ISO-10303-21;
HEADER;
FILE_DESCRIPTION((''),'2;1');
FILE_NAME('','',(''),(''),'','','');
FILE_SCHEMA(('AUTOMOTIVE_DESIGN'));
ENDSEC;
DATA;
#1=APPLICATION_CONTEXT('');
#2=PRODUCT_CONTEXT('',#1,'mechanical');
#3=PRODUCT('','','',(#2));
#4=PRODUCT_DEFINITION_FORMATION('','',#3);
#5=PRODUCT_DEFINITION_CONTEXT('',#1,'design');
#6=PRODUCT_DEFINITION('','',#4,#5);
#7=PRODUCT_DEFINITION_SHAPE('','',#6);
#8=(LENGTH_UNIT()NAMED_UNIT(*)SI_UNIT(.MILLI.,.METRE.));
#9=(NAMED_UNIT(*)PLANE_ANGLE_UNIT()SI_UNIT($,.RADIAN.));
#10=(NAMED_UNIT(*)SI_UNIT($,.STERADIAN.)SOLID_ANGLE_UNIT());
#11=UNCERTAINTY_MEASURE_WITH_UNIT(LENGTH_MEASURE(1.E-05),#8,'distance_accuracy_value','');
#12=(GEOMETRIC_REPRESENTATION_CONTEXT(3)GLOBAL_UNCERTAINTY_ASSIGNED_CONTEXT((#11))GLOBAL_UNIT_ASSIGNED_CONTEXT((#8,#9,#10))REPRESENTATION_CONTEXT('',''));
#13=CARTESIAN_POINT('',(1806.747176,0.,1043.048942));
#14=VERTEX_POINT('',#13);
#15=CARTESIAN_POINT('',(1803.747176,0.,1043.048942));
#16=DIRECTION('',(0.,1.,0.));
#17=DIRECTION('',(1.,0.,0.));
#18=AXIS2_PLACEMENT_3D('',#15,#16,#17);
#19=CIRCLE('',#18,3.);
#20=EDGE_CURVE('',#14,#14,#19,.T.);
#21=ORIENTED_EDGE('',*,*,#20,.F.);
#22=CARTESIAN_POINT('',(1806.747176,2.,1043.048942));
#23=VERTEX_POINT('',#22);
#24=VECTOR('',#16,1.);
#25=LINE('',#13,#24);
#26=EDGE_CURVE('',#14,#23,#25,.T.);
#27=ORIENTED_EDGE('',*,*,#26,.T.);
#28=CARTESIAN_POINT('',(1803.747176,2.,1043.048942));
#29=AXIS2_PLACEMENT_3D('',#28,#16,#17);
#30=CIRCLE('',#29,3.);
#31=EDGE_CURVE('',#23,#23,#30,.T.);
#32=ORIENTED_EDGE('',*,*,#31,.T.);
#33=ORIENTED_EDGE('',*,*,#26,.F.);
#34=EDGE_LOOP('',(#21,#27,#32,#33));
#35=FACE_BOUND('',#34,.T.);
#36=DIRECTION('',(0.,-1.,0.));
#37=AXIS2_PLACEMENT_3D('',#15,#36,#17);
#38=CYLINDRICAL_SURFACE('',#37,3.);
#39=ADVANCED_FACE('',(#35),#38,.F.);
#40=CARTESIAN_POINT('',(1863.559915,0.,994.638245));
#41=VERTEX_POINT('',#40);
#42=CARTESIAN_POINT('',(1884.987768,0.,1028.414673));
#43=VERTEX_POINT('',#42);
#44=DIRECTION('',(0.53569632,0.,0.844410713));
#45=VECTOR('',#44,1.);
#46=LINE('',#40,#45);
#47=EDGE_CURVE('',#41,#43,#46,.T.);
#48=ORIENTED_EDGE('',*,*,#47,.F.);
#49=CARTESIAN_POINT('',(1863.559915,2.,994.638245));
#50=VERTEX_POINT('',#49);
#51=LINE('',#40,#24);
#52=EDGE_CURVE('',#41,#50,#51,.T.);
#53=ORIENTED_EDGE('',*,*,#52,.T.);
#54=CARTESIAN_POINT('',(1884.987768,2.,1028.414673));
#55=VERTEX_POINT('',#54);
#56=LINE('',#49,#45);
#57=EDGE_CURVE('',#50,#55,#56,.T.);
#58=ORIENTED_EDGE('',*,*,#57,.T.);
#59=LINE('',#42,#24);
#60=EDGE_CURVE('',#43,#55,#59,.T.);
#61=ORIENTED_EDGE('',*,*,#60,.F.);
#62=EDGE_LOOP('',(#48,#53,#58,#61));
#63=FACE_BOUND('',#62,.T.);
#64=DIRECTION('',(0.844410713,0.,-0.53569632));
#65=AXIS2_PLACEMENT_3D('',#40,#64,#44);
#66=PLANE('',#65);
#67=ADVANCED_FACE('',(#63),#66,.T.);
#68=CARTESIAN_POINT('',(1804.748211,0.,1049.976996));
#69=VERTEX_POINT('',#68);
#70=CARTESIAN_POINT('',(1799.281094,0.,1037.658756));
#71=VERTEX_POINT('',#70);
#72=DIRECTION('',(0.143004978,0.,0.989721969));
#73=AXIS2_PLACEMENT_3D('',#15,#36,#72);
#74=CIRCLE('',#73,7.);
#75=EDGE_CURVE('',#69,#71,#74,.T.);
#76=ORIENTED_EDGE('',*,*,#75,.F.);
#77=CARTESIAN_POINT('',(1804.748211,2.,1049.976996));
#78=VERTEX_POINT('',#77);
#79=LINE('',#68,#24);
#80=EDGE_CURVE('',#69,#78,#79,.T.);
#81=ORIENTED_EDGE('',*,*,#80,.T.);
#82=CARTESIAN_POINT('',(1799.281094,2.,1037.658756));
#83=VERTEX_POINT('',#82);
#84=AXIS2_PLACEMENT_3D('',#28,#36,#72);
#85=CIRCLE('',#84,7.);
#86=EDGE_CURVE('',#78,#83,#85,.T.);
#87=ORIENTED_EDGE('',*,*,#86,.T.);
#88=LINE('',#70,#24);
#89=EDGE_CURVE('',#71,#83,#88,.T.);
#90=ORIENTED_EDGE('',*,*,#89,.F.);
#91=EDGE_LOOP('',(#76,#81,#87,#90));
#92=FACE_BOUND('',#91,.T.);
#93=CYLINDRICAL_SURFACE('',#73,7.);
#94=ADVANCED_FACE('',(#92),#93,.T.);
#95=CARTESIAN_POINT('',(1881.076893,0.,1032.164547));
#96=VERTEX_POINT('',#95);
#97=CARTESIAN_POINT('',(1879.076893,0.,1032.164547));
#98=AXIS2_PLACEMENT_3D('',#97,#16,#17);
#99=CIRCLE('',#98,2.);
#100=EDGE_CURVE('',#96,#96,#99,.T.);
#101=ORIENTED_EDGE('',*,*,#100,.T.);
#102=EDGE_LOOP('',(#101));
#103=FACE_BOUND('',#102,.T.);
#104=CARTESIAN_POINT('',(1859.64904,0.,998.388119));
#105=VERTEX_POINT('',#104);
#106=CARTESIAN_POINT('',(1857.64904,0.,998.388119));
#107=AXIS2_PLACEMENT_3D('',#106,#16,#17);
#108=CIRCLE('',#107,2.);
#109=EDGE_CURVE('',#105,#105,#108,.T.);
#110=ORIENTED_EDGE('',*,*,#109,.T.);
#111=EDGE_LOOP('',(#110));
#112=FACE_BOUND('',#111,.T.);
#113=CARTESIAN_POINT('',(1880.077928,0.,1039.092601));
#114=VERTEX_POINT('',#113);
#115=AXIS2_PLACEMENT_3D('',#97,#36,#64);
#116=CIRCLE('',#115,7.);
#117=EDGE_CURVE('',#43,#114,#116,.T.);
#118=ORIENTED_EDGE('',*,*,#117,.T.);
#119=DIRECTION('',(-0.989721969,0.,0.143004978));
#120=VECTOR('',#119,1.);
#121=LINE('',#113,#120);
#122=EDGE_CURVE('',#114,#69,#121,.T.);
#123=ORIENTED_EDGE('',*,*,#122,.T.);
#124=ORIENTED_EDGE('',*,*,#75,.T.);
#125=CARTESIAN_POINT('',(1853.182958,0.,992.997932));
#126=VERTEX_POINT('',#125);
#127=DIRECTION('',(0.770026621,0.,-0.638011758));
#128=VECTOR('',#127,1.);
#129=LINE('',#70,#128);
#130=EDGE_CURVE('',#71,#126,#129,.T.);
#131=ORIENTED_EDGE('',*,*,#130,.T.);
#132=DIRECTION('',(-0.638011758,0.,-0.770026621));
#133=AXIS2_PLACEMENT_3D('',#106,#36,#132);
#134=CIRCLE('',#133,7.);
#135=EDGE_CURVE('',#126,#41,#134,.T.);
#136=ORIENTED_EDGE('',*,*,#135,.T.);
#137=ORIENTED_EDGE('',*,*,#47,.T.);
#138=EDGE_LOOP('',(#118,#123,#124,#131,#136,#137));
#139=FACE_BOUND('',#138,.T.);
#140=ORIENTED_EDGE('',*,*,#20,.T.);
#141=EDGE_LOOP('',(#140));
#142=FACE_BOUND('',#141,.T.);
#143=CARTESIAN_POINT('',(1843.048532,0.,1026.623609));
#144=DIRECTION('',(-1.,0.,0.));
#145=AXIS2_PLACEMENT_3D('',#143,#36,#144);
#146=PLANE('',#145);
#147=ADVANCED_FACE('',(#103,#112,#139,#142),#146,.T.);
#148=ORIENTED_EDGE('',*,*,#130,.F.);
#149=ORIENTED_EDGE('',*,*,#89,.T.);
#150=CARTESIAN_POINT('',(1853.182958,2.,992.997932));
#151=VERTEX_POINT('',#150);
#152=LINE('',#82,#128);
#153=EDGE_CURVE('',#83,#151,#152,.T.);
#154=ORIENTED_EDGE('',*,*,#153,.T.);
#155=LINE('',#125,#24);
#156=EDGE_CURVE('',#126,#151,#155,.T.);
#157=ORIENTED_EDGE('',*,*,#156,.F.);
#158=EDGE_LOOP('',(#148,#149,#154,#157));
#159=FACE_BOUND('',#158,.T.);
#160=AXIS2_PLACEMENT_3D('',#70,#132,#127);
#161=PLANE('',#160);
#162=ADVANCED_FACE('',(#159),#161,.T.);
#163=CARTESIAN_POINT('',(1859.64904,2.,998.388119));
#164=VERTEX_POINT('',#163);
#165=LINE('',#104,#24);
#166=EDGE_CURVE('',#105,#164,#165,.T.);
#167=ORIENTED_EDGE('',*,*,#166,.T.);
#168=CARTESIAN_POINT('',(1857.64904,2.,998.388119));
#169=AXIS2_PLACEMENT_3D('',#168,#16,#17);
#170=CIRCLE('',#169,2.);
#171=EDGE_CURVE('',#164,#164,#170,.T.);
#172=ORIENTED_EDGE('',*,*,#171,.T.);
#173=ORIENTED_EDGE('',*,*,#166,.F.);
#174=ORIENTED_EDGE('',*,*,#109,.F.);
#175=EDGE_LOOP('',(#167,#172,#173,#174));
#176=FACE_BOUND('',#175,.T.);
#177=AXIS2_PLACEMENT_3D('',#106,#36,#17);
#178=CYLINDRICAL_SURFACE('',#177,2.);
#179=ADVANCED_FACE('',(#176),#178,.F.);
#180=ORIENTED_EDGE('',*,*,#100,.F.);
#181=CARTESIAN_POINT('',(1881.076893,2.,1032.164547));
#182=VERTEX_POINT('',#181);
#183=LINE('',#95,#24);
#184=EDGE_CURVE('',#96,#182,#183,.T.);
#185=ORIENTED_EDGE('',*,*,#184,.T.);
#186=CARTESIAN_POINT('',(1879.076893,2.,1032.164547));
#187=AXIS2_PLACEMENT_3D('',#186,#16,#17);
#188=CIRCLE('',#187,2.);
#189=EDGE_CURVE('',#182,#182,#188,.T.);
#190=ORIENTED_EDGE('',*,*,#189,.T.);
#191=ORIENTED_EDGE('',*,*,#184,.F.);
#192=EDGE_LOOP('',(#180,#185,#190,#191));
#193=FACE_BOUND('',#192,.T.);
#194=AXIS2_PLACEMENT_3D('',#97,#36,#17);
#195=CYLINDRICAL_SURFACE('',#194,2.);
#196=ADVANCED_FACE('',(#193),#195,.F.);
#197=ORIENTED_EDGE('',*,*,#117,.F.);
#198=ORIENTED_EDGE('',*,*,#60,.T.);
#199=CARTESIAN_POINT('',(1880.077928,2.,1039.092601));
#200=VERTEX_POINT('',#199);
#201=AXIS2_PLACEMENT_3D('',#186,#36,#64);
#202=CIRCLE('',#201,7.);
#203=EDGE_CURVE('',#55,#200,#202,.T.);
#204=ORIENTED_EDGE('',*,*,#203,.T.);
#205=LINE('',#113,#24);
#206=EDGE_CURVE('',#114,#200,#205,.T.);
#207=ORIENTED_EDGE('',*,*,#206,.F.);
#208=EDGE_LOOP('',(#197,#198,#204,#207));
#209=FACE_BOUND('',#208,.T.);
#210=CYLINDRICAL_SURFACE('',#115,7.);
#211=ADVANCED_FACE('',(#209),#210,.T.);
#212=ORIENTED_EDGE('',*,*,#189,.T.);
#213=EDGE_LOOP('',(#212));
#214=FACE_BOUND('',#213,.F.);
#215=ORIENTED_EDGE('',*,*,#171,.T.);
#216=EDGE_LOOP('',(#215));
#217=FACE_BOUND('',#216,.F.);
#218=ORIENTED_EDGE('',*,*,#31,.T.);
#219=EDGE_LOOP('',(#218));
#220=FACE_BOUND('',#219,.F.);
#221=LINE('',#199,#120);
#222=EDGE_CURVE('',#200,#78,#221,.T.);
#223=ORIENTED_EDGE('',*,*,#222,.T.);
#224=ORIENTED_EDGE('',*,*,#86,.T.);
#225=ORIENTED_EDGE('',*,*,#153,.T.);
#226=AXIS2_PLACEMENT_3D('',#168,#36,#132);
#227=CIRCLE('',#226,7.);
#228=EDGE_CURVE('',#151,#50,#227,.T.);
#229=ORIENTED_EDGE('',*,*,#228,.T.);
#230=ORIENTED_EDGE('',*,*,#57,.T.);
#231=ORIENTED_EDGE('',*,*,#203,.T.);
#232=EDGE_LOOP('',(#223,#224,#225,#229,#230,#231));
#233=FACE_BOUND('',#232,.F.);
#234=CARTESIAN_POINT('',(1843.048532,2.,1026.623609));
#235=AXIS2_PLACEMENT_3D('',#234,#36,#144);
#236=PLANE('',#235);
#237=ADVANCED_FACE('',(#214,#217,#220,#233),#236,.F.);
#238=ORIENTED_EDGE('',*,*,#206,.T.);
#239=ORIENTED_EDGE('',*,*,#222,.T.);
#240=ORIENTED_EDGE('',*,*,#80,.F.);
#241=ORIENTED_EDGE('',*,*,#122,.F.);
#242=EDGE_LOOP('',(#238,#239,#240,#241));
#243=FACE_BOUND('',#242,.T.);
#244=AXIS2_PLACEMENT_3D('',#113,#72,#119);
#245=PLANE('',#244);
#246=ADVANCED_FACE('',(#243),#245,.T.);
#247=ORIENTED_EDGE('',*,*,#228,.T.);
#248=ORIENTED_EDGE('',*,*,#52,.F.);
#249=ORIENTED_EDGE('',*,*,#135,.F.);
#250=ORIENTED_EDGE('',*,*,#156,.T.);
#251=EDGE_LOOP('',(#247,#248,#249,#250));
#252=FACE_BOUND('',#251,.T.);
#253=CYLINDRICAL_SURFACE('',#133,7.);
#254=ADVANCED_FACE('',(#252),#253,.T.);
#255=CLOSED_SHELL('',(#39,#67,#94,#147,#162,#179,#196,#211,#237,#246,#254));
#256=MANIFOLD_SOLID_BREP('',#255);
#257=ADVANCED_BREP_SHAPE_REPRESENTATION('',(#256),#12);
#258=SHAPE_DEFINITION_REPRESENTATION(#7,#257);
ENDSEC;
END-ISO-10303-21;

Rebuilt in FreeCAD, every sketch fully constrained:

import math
import FreeCAD as App
import Part
import Sketcher

V = App.Vector

doc = App.newDocument("Part")
params = doc.addObject("Spreadsheet::Sheet", "Params")
for row, (alias, value) in enumerate([
    ("sketch1_diameter", "4 mm"),
    ("sketch1_diameter2", "6 mm"),
    ("sketch1_radius", "7 mm"),
    ("sketch1_length", "40 mm"),
    ("sketch1_length2", "70 mm"),
    ("pad1_length", "2 mm"),
], start=1):
    params.set(f"A{row}", alias)
    params.set(f"B{row}", "=" + value)
    params.setAlias(f"B{row}", alias)

body = doc.addObject("PartDesign::Body", "Body")

sketch1 = body.newObject("Sketcher::SketchObject", "Sketch")
sketch1.AttachmentSupport = (doc.getObject("XZ_Plane"), [""])
sketch1.MapMode = "FlatFace"
sketch1.addGeometry([
    Part.LineSegment(V(1804.748211, 1049.976996, 0), V(1880.077928, 1039.092601, 0)),
    Part.ArcOfCircle(Part.Circle(V(1879.076893, 1032.164547, 0), V(0, 0, 1), 7), math.radians(-32.391146), math.radians(81.778231)),
    Part.LineSegment(V(1884.987768, 1028.414673, 0), V(1863.559915, 994.638245, 0)),
    Part.ArcOfCircle(Part.Circle(V(1857.64904, 998.388119, 0), V(0, 0, 1), 7), math.radians(-129.643721), math.radians(-32.391146)),
    Part.LineSegment(V(1853.182958, 992.997932, 0), V(1799.281094, 1037.658756, 0)),
    Part.ArcOfCircle(Part.Circle(V(1803.747176, 1043.048942, 0), V(0, 0, 1), 7), math.radians(81.778231), math.radians(230.356279)),
    Part.Circle(V(1879.076893, 1032.164547, 0), V(0, 0, 1), 2),
    Part.Circle(V(1803.747176, 1043.048942, 0), V(0, 0, 1), 3),
    Part.Circle(V(1857.64904, 998.388119, 0), V(0, 0, 1), 2),
], False)
sketch1.addConstraint([
    Sketcher.Constraint("Tangent", 0, 2, 1, 2),
    Sketcher.Constraint("Tangent", 1, 1, 2, 1),
    Sketcher.Constraint("Tangent", 2, 2, 3, 2),
    Sketcher.Constraint("Tangent", 3, 1, 4, 1),
    Sketcher.Constraint("Tangent", 4, 2, 5, 2),
    Sketcher.Constraint("Tangent", 5, 1, 0, 1),
    Sketcher.Constraint("Coincident", 6, 3, 1, 3),
    Sketcher.Constraint("Coincident", 7, 3, 5, 3),
    Sketcher.Constraint("Coincident", 8, 3, 3, 3),
    Sketcher.Constraint("Equal", 1, 3),
    Sketcher.Constraint("Equal", 3, 5),
    Sketcher.Constraint("Equal", 6, 8),
    Sketcher.Constraint("Diameter", 6, 4.0),
    Sketcher.Constraint("Diameter", 7, 6.0),
    Sketcher.Constraint("Radius", 1, 7.0),
    Sketcher.Constraint("Distance", 2, 40.0),
    Sketcher.Constraint("Distance", 4, 70.0),
    Sketcher.Constraint("DistanceY", -1, 1, 0, 2, 1039.092601),
    Sketcher.Constraint("DistanceX", -1, 1, 3, 3, 1857.64904),
    Sketcher.Constraint("DistanceY", -1, 1, 3, 3, 998.388119),
    Sketcher.Constraint("DistanceY", -1, 1, 5, 3, 1043.048942),
])
sketch1.setExpression("Constraints[12]", "Params.sketch1_diameter")
sketch1.setExpression("Constraints[13]", "Params.sketch1_diameter2")
sketch1.setExpression("Constraints[14]", "Params.sketch1_radius")
sketch1.setExpression("Constraints[15]", "Params.sketch1_length")
sketch1.setExpression("Constraints[16]", "Params.sketch1_length2")
pad1 = body.newObject("PartDesign::Pad", "Pad")
pad1.Profile = sketch1
pad1.setExpression("Length", "Params.pad1_length")
pad1.Reversed = True

doc.recompute()
